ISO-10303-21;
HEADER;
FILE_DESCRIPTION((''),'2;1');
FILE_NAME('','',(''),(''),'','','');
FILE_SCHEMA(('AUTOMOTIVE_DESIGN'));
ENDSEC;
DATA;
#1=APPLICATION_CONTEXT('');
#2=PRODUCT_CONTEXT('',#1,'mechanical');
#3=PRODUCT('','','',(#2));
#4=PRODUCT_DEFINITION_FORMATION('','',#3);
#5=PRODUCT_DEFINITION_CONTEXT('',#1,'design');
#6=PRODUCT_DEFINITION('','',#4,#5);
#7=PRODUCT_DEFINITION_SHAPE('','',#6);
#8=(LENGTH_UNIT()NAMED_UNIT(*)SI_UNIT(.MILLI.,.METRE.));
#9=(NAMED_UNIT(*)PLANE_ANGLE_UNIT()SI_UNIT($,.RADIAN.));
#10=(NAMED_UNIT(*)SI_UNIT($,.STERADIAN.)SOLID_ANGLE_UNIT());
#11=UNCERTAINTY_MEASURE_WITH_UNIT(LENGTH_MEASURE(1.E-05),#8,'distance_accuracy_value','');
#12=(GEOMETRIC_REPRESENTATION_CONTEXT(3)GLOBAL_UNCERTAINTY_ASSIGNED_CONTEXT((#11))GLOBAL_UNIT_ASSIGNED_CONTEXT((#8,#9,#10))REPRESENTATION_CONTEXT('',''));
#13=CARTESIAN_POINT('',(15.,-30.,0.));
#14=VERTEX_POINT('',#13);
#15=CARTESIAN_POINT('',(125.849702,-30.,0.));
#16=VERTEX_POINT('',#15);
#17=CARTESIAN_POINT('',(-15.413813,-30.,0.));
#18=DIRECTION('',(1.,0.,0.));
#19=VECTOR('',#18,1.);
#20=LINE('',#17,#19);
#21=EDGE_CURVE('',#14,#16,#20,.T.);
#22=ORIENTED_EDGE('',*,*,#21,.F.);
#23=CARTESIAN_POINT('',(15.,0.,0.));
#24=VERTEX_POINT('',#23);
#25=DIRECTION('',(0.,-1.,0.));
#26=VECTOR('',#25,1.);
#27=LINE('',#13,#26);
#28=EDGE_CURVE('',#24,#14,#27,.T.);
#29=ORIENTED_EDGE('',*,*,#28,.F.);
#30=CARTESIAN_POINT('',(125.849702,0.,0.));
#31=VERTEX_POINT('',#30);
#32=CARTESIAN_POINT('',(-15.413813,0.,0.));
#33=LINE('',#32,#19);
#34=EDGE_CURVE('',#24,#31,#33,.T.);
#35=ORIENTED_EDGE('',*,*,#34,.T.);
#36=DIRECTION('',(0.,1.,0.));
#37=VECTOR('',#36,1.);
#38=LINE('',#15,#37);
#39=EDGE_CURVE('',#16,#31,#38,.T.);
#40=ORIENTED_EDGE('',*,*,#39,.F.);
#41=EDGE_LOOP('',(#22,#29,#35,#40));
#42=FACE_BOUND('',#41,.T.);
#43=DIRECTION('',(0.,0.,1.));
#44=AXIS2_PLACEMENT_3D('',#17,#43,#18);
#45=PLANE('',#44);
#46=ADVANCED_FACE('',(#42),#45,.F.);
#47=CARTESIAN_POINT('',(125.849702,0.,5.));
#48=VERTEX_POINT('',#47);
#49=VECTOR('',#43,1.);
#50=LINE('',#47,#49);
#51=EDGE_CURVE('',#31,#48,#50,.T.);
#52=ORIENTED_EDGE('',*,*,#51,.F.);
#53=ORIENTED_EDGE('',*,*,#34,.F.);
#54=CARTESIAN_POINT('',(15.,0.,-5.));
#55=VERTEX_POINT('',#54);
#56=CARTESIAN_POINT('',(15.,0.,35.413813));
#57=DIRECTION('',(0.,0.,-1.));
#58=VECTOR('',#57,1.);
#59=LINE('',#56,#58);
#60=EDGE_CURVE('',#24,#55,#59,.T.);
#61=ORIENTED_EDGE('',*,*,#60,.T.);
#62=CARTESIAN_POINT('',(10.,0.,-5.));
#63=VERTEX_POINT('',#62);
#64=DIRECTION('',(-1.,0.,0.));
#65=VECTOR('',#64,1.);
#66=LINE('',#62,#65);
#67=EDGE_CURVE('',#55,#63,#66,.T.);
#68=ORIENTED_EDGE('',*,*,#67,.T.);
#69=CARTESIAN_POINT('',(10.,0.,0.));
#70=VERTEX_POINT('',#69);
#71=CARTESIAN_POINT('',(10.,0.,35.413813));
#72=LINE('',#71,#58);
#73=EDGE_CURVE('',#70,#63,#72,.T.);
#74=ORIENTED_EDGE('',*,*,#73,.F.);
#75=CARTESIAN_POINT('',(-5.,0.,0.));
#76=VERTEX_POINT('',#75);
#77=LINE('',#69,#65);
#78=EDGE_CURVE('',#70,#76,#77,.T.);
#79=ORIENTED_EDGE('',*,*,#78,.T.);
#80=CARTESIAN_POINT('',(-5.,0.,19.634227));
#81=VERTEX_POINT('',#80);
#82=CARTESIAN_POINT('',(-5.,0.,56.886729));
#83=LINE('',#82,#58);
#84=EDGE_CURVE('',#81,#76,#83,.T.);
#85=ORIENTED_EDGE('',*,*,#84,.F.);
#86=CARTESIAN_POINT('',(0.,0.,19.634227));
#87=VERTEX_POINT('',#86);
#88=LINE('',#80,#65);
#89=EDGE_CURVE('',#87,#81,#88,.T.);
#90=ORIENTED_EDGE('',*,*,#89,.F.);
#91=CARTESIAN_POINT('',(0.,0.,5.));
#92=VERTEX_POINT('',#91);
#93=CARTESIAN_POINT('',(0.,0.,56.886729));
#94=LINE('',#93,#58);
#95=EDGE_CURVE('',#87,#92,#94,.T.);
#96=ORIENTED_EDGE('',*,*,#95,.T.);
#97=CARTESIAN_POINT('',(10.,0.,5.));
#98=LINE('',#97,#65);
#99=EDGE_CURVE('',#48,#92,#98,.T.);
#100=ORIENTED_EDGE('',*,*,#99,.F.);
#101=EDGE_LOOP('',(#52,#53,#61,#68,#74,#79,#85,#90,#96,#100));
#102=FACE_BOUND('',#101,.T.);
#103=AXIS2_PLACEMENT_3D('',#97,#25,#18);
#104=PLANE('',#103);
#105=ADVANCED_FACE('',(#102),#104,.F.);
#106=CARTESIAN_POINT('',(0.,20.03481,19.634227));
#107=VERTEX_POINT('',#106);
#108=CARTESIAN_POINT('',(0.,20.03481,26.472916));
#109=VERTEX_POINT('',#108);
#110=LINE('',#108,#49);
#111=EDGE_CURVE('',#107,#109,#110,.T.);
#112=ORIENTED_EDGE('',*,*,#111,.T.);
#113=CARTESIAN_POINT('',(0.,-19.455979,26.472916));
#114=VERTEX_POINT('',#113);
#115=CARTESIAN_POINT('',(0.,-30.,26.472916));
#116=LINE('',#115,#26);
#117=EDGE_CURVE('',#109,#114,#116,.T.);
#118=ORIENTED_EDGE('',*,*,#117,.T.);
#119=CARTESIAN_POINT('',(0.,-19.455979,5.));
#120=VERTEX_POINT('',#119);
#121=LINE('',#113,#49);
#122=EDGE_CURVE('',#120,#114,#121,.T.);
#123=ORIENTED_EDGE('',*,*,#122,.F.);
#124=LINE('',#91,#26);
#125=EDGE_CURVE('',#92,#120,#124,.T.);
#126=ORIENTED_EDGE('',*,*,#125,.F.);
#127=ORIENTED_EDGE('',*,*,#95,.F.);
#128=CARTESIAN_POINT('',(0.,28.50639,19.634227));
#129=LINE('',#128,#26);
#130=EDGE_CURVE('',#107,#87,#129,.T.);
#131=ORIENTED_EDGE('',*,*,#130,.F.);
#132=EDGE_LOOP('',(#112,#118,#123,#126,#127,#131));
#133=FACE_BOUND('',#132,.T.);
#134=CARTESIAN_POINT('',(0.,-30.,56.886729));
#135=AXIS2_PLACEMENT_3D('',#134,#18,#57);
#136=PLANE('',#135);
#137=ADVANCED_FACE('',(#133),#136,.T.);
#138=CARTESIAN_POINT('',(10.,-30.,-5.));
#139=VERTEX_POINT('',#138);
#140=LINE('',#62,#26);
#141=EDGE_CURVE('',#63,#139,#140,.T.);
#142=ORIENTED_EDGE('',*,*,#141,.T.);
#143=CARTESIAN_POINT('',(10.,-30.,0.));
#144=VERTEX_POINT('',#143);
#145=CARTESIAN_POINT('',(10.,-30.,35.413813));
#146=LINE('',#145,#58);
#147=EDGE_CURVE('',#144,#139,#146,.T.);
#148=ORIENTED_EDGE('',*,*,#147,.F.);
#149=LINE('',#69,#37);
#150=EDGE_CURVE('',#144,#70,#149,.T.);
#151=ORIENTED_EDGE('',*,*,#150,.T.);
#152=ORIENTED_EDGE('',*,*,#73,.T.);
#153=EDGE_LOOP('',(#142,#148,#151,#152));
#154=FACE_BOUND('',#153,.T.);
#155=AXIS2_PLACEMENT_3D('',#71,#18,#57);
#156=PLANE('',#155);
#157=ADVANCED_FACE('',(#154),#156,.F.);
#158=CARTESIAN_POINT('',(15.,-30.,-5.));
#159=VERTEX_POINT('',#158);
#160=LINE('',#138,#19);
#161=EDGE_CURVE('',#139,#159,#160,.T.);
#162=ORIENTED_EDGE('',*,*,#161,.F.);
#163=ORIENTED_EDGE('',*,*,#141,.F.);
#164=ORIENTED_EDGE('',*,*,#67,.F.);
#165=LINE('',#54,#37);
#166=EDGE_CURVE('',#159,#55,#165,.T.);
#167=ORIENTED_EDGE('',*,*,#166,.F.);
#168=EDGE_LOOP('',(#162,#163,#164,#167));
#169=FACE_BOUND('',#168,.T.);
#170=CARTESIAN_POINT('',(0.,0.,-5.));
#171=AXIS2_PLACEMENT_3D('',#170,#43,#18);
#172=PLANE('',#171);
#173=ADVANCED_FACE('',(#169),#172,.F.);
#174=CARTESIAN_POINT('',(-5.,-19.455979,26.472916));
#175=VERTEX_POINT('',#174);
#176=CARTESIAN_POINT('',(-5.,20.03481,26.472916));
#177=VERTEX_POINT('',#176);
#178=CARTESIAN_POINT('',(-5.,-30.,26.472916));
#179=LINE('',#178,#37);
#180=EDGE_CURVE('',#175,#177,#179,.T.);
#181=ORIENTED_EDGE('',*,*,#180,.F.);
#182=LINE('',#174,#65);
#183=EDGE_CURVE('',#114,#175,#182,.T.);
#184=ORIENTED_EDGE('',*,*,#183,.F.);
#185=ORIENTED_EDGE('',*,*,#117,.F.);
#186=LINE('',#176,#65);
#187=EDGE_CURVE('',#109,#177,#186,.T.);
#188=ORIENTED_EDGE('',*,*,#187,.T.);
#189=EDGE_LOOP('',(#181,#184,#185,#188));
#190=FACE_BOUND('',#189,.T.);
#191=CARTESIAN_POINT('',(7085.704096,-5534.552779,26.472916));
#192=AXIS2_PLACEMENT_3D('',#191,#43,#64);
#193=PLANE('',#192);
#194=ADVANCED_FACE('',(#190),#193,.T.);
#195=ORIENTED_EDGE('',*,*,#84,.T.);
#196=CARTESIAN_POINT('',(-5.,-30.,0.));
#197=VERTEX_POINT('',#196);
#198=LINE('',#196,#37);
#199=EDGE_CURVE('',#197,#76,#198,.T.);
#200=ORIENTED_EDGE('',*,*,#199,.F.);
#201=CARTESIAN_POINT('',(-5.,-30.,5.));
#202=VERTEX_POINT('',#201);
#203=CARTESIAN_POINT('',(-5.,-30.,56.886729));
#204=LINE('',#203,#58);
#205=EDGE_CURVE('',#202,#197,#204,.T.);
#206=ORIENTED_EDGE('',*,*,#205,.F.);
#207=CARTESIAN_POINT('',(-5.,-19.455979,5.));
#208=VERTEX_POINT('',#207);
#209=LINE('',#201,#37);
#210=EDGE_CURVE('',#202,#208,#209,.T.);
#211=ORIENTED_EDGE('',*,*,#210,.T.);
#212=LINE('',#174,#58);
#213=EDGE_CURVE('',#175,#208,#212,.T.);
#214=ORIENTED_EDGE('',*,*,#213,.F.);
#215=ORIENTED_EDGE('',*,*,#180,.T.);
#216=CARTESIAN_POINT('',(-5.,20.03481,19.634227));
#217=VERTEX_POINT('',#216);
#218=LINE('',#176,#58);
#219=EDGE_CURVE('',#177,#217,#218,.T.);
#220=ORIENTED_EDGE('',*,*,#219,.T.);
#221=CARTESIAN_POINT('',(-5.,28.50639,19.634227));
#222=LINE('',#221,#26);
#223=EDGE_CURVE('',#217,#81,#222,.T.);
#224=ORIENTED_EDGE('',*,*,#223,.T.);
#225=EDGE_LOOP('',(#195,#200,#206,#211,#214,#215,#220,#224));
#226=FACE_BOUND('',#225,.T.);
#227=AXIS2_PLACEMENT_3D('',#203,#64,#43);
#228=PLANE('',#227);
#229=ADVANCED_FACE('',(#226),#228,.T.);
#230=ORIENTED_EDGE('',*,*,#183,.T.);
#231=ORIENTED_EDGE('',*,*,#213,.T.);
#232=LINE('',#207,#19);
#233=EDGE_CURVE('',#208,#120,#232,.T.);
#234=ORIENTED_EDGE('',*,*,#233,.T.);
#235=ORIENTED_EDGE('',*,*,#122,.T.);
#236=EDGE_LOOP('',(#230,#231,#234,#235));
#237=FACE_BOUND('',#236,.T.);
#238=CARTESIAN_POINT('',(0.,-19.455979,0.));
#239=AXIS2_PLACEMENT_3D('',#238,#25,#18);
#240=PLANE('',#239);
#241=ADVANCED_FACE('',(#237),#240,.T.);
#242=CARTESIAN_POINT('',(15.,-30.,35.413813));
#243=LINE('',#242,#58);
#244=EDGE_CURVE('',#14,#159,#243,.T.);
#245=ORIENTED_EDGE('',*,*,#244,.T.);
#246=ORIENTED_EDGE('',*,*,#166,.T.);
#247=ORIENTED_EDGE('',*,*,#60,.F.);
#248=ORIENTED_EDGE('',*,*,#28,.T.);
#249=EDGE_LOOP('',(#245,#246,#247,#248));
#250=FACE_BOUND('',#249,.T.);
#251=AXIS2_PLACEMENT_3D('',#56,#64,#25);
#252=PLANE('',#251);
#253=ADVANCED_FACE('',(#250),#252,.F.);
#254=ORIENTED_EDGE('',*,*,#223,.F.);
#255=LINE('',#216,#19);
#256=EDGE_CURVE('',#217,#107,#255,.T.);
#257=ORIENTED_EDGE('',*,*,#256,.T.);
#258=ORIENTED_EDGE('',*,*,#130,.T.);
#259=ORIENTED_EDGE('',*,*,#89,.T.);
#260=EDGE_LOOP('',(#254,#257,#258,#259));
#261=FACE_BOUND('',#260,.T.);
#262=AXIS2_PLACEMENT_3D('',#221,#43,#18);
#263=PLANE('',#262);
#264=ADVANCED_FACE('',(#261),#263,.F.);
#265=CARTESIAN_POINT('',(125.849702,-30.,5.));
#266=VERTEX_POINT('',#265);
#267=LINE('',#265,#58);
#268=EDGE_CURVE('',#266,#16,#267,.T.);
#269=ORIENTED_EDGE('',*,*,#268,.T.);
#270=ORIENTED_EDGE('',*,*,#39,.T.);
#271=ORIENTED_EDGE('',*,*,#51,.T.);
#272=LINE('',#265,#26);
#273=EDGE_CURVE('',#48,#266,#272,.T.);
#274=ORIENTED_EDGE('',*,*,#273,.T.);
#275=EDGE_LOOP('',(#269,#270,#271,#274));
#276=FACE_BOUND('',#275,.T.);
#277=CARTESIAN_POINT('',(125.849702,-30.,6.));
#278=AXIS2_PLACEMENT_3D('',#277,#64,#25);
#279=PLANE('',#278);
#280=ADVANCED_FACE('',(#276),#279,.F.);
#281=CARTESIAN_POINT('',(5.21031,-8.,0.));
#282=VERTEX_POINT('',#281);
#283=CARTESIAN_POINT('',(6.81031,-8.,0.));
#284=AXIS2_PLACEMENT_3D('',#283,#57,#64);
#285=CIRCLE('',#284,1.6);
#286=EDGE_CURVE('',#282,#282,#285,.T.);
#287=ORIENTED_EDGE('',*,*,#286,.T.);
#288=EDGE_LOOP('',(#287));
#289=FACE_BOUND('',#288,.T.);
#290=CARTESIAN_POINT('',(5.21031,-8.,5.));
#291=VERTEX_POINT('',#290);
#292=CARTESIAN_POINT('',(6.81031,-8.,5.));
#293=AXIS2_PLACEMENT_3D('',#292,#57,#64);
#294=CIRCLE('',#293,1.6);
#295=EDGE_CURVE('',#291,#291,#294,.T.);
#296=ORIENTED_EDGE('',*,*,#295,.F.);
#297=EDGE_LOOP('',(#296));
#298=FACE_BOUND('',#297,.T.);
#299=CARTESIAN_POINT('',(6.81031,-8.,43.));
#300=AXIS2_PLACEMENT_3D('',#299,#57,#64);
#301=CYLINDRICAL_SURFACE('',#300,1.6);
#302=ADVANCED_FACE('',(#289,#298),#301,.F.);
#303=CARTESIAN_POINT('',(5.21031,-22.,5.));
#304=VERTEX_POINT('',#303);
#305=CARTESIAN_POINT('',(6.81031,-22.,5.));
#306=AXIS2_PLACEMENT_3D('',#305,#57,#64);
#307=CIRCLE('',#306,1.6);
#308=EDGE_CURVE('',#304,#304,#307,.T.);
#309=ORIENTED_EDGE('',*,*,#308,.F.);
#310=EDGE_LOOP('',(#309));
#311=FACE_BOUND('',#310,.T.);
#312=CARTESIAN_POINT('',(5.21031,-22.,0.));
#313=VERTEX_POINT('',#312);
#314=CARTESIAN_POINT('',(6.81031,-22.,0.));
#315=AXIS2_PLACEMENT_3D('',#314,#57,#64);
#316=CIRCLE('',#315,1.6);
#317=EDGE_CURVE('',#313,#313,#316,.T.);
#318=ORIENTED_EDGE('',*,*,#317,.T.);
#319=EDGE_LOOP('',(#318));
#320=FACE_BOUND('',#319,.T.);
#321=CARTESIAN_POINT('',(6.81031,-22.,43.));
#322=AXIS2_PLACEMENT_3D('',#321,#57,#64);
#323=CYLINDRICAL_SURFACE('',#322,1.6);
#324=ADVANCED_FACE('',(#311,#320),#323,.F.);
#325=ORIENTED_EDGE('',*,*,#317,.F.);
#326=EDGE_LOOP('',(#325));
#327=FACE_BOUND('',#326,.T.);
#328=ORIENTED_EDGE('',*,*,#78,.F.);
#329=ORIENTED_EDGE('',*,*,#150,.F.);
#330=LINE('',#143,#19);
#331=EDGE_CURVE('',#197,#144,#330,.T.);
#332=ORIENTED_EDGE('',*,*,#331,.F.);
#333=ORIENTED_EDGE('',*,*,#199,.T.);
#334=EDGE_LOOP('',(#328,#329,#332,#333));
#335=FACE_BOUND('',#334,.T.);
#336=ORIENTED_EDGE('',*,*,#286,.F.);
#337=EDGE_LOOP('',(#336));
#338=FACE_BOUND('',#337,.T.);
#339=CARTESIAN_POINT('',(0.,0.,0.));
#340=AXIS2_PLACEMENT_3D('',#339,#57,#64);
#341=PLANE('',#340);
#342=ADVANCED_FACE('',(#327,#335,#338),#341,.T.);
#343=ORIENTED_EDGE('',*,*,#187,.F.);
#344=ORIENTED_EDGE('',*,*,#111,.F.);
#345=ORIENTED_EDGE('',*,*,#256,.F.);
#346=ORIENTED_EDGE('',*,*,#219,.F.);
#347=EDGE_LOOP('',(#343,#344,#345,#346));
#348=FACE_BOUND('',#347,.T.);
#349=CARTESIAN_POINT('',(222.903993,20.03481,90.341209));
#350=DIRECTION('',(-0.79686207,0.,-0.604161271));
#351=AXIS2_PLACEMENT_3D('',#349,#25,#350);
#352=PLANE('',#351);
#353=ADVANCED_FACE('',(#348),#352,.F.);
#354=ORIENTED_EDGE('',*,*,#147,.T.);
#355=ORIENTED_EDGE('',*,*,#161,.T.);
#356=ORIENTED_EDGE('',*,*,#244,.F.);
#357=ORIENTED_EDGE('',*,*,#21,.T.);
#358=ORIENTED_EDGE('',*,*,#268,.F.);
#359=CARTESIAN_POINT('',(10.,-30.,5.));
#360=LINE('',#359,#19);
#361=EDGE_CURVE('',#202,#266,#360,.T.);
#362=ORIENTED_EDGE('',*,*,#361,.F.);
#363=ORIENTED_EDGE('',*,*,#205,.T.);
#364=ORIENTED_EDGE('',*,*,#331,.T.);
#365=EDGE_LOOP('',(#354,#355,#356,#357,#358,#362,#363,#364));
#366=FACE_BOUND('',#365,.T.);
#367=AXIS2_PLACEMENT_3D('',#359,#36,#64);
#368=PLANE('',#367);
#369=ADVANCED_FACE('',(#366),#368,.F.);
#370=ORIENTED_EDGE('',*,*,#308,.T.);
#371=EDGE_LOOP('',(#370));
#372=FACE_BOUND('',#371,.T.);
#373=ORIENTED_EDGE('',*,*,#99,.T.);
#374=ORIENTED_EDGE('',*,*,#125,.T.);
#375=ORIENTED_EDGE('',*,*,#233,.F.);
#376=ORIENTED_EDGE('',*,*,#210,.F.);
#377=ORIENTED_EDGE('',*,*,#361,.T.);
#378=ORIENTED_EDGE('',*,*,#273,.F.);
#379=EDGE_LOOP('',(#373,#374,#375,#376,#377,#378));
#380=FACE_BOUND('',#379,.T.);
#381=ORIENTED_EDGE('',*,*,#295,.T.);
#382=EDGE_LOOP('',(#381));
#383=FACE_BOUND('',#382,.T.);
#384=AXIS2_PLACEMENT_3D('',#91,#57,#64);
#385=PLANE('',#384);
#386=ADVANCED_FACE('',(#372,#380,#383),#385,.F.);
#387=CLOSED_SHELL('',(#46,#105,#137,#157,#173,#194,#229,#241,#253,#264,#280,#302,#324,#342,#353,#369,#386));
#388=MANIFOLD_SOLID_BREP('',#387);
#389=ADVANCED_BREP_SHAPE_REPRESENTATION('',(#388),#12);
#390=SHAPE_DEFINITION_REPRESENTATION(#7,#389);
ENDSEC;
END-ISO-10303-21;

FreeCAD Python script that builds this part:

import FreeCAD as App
import Part
import Sketcher

V = App.Vector
Q = App.Units.Quantity


def add_polygon(sketch, points):
    """Adds a closed chain of lines whose ends are joined by coincident constraints."""
    first, n = sketch.GeometryCount, len(points)
    for a, b in zip(points, points[1:] + points[:1]):
        sketch.addGeometry(Part.LineSegment(App.Vector(*a, 0), App.Vector(*b, 0)), False)
    for i in range(n):
        sketch.addConstraint(Sketcher.Constraint("Coincident", first + i, 2, first + (i + 1) % n, 1))

doc = App.newDocument("Part")
body = doc.addObject("PartDesign::Body", "Body")

# Sketch on XY plane
sketch1 = doc.addObject("Sketcher::SketchObject", "Sketch")
body.addObject(sketch1)
sketch1.AttachmentSupport = (doc.XY_Plane, [""])
sketch1.MapMode = "FlatFace"
add_polygon(sketch1, [(0, 0), (0, -30), (10, -30), (10, 0)])  # lines 0-3
sketch1.addConstraint([
    Sketcher.Constraint("Vertical", 0),
    Sketcher.Constraint("Horizontal", 1),
    Sketcher.Constraint("Vertical", 2),
    Sketcher.Constraint("Horizontal", 3),
    Sketcher.Constraint("Coincident", 3, 2, -1, 1),
    Sketcher.Constraint("DistanceX", 1, 1, 1, 2, Q("10 mm")),
    Sketcher.Constraint("DistanceY", 0, 2, 0, 1, Q("30 mm")),
])
pad1 = doc.addObject("PartDesign::Pad", "Pad")
body.addObject(pad1)
pad1.Profile = sketch1
pad1.Length = 5

# Sketch on XY plane
sketch2 = doc.addObject("Sketcher::SketchObject", "Sketch001")
body.addObject(sketch2)
sketch2.AttachmentSupport = (doc.XY_Plane, [""])
sketch2.MapMode = "FlatFace"
sketch2.addGeometry([
    Part.Circle(V(6.81031, -8, 0), V(0, 0, 1), 1.6),
    Part.Circle(V(6.81031, -22, 0), V(0, 0, 1), 1.6),
], False)
sketch2.addConstraint([
    Sketcher.Constraint("Equal", 0, 1),
    Sketcher.Constraint("Vertical", 0, 3, 1, 3),
    Sketcher.Constraint("Diameter", 0, Q("3.2 mm")),
    Sketcher.Constraint("DistanceY", 0, 3, -1, 1, Q("8 mm")),
    Sketcher.Constraint("DistanceY", 1, 3, -1, 1, Q("22 mm")),
    Sketcher.Constraint("DistanceX", -1, 1, 0, 3, Q("6.81031 mm")),
])
pocket1 = doc.addObject("PartDesign::Pocket", "Pocket")
body.addObject(pocket1)
pocket1.Profile = sketch2
pocket1.Length = 43
pocket1.Reversed = True

# Sketch on XY plane
sketch3 = doc.addObject("Sketcher::SketchObject", "Sketch002")
body.addObject(sketch3)
sketch3.AttachmentSupport = (doc.XY_Plane, [""])
sketch3.MapMode = "FlatFace"
add_polygon(sketch3, [(10, 0), (10, -30), (15, -30), (15, 0)])  # lines 0-3
sketch3.addConstraint([
    Sketcher.Constraint("Vertical", 0),
    Sketcher.Constraint("Horizontal", 1),
    Sketcher.Constraint("Vertical", 2),
    Sketcher.Constraint("Horizontal", 3),
    Sketcher.Constraint("PointOnObject", 2, 2, -1),
    Sketcher.Constraint("DistanceX", 1, 1, 1, 2, Q("5 mm")),
    Sketcher.Constraint("DistanceY", 0, 2, 0, 1, Q("30 mm")),
    Sketcher.Constraint("DistanceX", -1, 1, 0, 2, Q("10 mm")),
])
pad2 = doc.addObject("PartDesign::Pad", "Pad001")
body.addObject(pad2)
pad2.Profile = sketch3
pad2.Type = "TwoLengths"
pad2.Length = 5
pad2.Length2 = 5

# Sketch on YZ plane
sketch4 = doc.addObject("Sketcher::SketchObject", "Sketch003")
body.addObject(sketch4)
sketch4.AttachmentSupport = (doc.YZ_Plane, [""])
sketch4.MapMode = "FlatFace"
sketch4.AttachmentOffset = App.Placement(V(0, 0, 125.849702), App.Rotation())
add_polygon(sketch4, [(0, 0), (-30, 0), (-30, 5), (0, 5)])  # lines 0-3
sketch4.addConstraint([
    Sketcher.Constraint("Horizontal", 0),
    Sketcher.Constraint("Vertical", 1),
    Sketcher.Constraint("Horizontal", 2),
    Sketcher.Constraint("Vertical", 3),
    Sketcher.Constraint("Coincident", 3, 2, -1, 1),
    Sketcher.Constraint("DistanceX", 0, 2, 0, 1, Q("30 mm")),
    Sketcher.Constraint("DistanceY", 1, 1, 1, 2, Q("5 mm")),
])
pad3 = doc.addObject("PartDesign::Pad", "Pad002")
body.addObject(pad3)
pad3.Profile = sketch4
pad3.Length = 110.849702
pad3.Reversed = True

# Sketch on XY plane
sketch5 = doc.addObject("Sketcher::SketchObject", "Sketch004")
body.addObject(sketch5)
sketch5.AttachmentSupport = (doc.XY_Plane, [""])
sketch5.MapMode = "FlatFace"
add_polygon(sketch5, [(0, 0), (0, -30), (-5, -30), (-5, 0)])  # lines 0-3
sketch5.addConstraint([
    Sketcher.Constraint("Vertical", 0),
    Sketcher.Constraint("Horizontal", 1),
    Sketcher.Constraint("Vertical", 2),
    Sketcher.Constraint("Horizontal", 3),
    Sketcher.Constraint("Coincident", 3, 2, -1, 1),
    Sketcher.Constraint("DistanceX", 1, 2, 1, 1, Q("5 mm")),
    Sketcher.Constraint("DistanceY", 0, 2, 0, 1, Q("30 mm")),
])
pad4 = doc.addObject("PartDesign::Pad", "Pad003")
body.addObject(pad4)
pad4.Profile = sketch5
pad4.Length = 26.472916

# Sketch on XZ plane
sketch6 = doc.addObject("Sketcher::SketchObject", "Sketch005")
body.addObject(sketch6)
sketch6.AttachmentSupport = (doc.XZ_Plane, [""])
sketch6.MapMode = "FlatFace"
add_polygon(sketch6, [(-5, 19.634227), (-5, 26.472915), (0, 26.472915), (0, 19.634227)])  # lines 0-3
sketch6.addConstraint([
    Sketcher.Constraint("Vertical", 0),
    Sketcher.Constraint("Horizontal", 1),
    Sketcher.Constraint("Vertical", 2),
    Sketcher.Constraint("Horizontal", 3),
    Sketcher.Constraint("PointOnObject", 1, 2, -2),
    Sketcher.Constraint("DistanceX", 1, 1, 1, 2, Q("5 mm")),
    Sketcher.Constraint("DistanceY", 0, 1, 0, 2, Q("6.838689 mm")),
    Sketcher.Constraint("DistanceY", -1, 1, 0, 2, Q("26.472915 mm")),
])
pad5 = doc.addObject("PartDesign::Pad", "Pad004")
body.addObject(pad5)
pad5.Profile = sketch6
pad5.Length = 20.03481
pad5.Reversed = True

# Sketch on XZ plane
sketch7 = doc.addObject("Sketcher::SketchObject", "Sketch006")
body.addObject(sketch7)
sketch7.AttachmentSupport = (doc.XZ_Plane, [""])
sketch7.MapMode = "FlatFace"
sketch7.AttachmentOffset = App.Placement(V(0, 0, 19.455979), App.Rotation())
add_polygon(sketch7, [(-5, 26.472916), (-5, 5), (0, 5), (0, 26.472916)])  # lines 0-3
sketch7.addConstraint([
    Sketcher.Constraint("Vertical", 0),
    Sketcher.Constraint("Horizontal", 1),
    Sketcher.Constraint("Vertical", 2),
    Sketcher.Constraint("Horizontal", 3),
    Sketcher.Constraint("PointOnObject", 1, 2, -2),
    Sketcher.Constraint("DistanceX", 1, 1, 1, 2, Q("5 mm")),
    Sketcher.Constraint("DistanceY", -1, 1, 0, 2, Q("5 mm")),
    Sketcher.Constraint("DistanceY", 0, 2, 0, 1, Q("21.472916 mm")),
])
pocket2 = doc.addObject("PartDesign::Pocket", "Pocket001")
body.addObject(pocket2)
pocket2.Profile = sketch7
pocket2.Type = "ThroughAll"
pocket2.Reversed = True

doc.recompute()
